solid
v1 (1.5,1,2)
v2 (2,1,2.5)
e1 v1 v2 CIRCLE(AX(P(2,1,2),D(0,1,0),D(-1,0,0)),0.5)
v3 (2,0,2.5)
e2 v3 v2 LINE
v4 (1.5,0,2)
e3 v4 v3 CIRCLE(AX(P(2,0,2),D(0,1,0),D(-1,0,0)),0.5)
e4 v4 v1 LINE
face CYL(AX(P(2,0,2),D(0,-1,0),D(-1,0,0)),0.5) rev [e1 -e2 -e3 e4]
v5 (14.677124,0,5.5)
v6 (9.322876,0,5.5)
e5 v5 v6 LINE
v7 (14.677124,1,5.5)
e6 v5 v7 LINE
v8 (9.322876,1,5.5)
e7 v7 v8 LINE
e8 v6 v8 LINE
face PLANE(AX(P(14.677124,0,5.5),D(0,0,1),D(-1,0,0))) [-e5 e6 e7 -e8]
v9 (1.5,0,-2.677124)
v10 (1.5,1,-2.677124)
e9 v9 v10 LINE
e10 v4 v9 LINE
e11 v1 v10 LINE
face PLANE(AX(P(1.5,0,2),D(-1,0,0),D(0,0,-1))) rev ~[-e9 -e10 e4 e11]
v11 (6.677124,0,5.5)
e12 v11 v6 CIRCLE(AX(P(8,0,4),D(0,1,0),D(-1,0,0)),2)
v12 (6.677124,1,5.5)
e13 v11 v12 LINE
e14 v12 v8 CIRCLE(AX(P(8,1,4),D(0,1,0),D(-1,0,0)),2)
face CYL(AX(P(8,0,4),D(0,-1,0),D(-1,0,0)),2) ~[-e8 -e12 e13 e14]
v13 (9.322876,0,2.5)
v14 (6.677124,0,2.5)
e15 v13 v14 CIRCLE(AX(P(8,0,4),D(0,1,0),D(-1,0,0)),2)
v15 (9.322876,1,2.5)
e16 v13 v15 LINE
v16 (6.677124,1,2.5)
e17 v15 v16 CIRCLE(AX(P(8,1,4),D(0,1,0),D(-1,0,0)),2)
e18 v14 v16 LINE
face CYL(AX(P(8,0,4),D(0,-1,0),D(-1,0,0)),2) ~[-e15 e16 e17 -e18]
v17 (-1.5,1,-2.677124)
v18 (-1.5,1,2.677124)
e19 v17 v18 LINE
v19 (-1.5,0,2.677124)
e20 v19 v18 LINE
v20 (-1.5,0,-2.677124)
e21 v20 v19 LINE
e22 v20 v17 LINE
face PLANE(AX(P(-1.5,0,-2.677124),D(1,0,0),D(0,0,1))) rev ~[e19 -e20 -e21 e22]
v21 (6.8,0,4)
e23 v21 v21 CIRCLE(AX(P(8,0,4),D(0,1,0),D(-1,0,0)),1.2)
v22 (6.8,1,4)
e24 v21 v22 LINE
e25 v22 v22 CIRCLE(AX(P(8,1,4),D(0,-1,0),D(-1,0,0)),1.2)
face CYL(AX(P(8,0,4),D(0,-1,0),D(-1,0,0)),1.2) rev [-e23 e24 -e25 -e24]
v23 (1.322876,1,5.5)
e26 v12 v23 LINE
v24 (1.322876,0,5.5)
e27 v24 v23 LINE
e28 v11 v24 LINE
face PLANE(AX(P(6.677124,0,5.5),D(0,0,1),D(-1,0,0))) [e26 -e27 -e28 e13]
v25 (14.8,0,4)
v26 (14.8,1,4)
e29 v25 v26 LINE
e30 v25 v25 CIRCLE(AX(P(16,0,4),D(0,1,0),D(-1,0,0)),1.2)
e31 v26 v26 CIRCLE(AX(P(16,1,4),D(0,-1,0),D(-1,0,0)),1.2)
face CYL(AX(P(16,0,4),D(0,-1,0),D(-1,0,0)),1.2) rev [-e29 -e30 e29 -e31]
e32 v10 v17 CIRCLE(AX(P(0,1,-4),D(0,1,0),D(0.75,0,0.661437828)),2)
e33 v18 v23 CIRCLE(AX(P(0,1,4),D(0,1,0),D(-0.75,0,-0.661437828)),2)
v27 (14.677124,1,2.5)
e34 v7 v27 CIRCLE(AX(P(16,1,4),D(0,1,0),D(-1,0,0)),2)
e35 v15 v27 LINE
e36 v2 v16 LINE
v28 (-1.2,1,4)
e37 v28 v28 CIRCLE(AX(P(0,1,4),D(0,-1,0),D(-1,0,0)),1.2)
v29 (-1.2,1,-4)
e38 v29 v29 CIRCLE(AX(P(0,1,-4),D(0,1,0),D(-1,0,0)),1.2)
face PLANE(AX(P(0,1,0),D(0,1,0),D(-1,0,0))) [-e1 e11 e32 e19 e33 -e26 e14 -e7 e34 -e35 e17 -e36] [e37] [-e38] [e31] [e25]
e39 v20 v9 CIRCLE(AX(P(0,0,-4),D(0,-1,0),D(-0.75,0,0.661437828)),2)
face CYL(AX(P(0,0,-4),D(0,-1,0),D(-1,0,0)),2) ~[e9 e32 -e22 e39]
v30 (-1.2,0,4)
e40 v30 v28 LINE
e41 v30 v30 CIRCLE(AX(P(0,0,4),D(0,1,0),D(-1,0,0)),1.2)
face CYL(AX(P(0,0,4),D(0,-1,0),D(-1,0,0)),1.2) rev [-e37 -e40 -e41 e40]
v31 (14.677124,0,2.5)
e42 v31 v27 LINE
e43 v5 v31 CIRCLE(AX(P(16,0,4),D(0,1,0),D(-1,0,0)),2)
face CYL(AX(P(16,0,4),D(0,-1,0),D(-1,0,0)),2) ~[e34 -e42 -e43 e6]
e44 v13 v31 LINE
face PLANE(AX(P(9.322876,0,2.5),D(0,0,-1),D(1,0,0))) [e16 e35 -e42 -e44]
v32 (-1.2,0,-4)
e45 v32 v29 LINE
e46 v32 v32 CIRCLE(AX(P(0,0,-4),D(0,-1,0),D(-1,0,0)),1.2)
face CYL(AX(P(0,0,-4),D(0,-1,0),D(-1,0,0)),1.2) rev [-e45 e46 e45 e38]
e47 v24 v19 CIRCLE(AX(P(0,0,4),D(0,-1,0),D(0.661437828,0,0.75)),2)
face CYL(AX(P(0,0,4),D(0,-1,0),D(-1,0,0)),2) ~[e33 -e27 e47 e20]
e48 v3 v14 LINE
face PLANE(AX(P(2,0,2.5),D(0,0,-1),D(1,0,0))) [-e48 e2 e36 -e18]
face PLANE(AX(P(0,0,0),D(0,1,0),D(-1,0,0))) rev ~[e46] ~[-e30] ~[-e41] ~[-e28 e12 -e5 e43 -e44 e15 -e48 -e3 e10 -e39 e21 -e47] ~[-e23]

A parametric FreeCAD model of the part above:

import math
import FreeCAD as App
import Part
import Sketcher
Q = App.Units.Quantity

doc = App.newDocument("Part")
params = doc.addObject("Spreadsheet::Sheet", "Params")
for row, (alias, value) in enumerate([
    ("sketch1_radius", "2 mm"),
    ("sketch1_diameter", "2.4 mm"),
    ("sketch1_radius2", "0.5 mm"),
    ("pad1_length", "1 mm"),
], start=1):
    params.set(f"A{row}", alias)
    params.set(f"B{row}", "=" + value)
    params.setAlias(f"B{row}", alias)

body = doc.addObject("PartDesign::Body", "Body")

# Sketch on XZ plane
sketch1 = body.newObject("Sketcher::SketchObject", "Sketch")
sketch1.AttachmentSupport = (doc.getObject("XZ_Plane"), [""])
sketch1.MapMode = "FlatFace"
sketch1.addGeometry(Part.ArcOfCircle(Part.Circle(App.Vector(0, -4, 0), App.Vector(0, 0, 1), 2), math.radians(139), math.radians(401)), False)
sketch1.addGeometry(Part.LineSegment(App.Vector(-1.5, -2.7, 0), App.Vector(-1.5, 2.7, 0)), False)
sketch1.addGeometry(Part.ArcOfCircle(Part.Circle(App.Vector(0, 4, 0), App.Vector(0, 0, 1), 2), math.radians(49), math.radians(221)), False)
sketch1.addGeometry(Part.LineSegment(App.Vector(1.3, 5.5, 0), App.Vector(6.7, 5.5, 0)), False)
sketch1.addGeometry(Part.ArcOfCircle(Part.Circle(App.Vector(8, 4, 0), App.Vector(0, 0, 1), 2), math.radians(49), math.radians(131)), False)
sketch1.addGeometry(Part.LineSegment(App.Vector(9.3, 5.5, 0), App.Vector(14.7, 5.5, 0)), False)
sketch1.addGeometry(Part.ArcOfCircle(Part.Circle(App.Vector(16, 4, 0), App.Vector(0, 0, 1), 2), math.radians(-131), math.radians(131)), False)
sketch1.addGeometry(Part.LineSegment(App.Vector(14.7, 2.5, 0), App.Vector(9.3, 2.5, 0)), False)
sketch1.addGeometry(Part.ArcOfCircle(Part.Circle(App.Vector(8, 4, 0), App.Vector(0, 0, 1), 2), math.radians(-131), math.radians(-49)), False)
sketch1.addGeometry(Part.LineSegment(App.Vector(6.7, 2.5, 0), App.Vector(2, 2.5, 0)), False)
sketch1.addGeometry(Part.ArcOfCircle(Part.Circle(App.Vector(2, 2, 0), App.Vector(0, 0, 1), 0.5), math.radians(90), math.radians(180)), False)
sketch1.addGeometry(Part.LineSegment(App.Vector(1.5, 2, 0), App.Vector(1.5, -2.7, 0)), False)
sketch1.addGeometry(Part.Circle(App.Vector(0, -4, 0), App.Vector(0, 0, 1), 1.2), False)
sketch1.addGeometry(Part.Circle(App.Vector(8, 4, 0), App.Vector(0, 0, 1), 1.2), False)
sketch1.addGeometry(Part.Circle(App.Vector(0, 4, 0), App.Vector(0, 0, 1), 1.2), False)
sketch1.addGeometry(Part.Circle(App.Vector(16, 4, 0), App.Vector(0, 0, 1), 1.2), False)
sketch1.addConstraint(Sketcher.Constraint("Coincident", 0, 1, 1, 1))
sketch1.addConstraint(Sketcher.Constraint("Coincident", 1, 2, 2, 2))
sketch1.addConstraint(Sketcher.Constraint("Coincident", 2, 1, 3, 1))
sketch1.addConstraint(Sketcher.Constraint("Coincident", 3, 2, 4, 2))
sketch1.addConstraint(Sketcher.Constraint("Coincident", 4, 1, 5, 1))
sketch1.addConstraint(Sketcher.Constraint("Coincident", 5, 2, 6, 2))
sketch1.addConstraint(Sketcher.Constraint("Coincident", 6, 1, 7, 1))
sketch1.addConstraint(Sketcher.Constraint("Coincident", 7, 2, 8, 2))
sketch1.addConstraint(Sketcher.Constraint("Coincident", 8, 1, 9, 1))
sketch1.addConstraint(Sketcher.Constraint("Tangent", 9, 2, 10, 1))
sketch1.addConstraint(Sketcher.Constraint("Tangent", 10, 2, 11, 1))
sketch1.addConstraint(Sketcher.Constraint("Coincident", 11, 2, 0, 2))
sketch1.addConstraint(Sketcher.Constraint("Vertical", 1))
sketch1.addConstraint(Sketcher.Constraint("Horizontal", 3))
sketch1.addConstraint(Sketcher.Constraint("Horizontal", 5))
sketch1.addConstraint(Sketcher.Constraint("Horizontal", 7))
sketch1.addConstraint(Sketcher.Constraint("Horizontal", 9))
sketch1.addConstraint(Sketcher.Constraint("Vertical", 11))
sketch1.addConstraint(Sketcher.Constraint("Coincident", 8, 3, 4, 3))
sketch1.addConstraint(Sketcher.Constraint("Coincident", 12, 3, 0, 3))
sketch1.addConstraint(Sketcher.Constraint("Coincident", 13, 3, 4, 3))
sketch1.addConstraint(Sketcher.Constraint("Coincident", 14, 3, 2, 3))
sketch1.addConstraint(Sketcher.Constraint("Coincident", 15, 3, 6, 3))
sketch1.addConstraint(Sketcher.Constraint("Equal", 0, 2))
sketch1.addConstraint(Sketcher.Constraint("Equal", 2, 4))
sketch1.addConstraint(Sketcher.Constraint("Equal", 4, 6))
sketch1.addConstraint(Sketcher.Constraint("Equal", 6, 8))
sketch1.addConstraint(Sketcher.Constraint("Equal", 12, 13))
sketch1.addConstraint(Sketcher.Constraint("Equal", 13, 14))
sketch1.addConstraint(Sketcher.Constraint("Equal", 14, 15))
sketch1.addConstraint(Sketcher.Constraint("Symmetric", 0, 3, 2, 3, -1, 1))
sketch1.addConstraint(Sketcher.Constraint("Symmetric", 0, 1, 11, 2, -2))
sketch1.addConstraint(Sketcher.Constraint("Horizontal", 2, 3, 4, 3))
sketch1.addConstraint(Sketcher.Constraint("Horizontal", 4, 3, 6, 3))
sketch1.addConstraint(Sketcher.Constraint("Horizontal", 3, 2, 4, 1))
sketch1.addConstraint(Sketcher.Constraint("Horizontal", 7, 2, 8, 1))
sketch1.addConstraint(Sketcher.Constraint("Vertical", 5, 2, 6, 1))
sketch1.addConstraint(Sketcher.Constraint("Equal", 3, 5))
sketch1.addConstraint(Sketcher.Constraint("Equal", 7, 1))
sketch1.addConstraint(Sketcher.Constraint("Equal", 9, 11))
sketch1.addConstraint(Sketcher.Constraint("Radius", 0, Q("2 mm")))
sketch1.addConstraint(Sketcher.Constraint("Diameter", 12, Q("2.4 mm")))
sketch1.addConstraint(Sketcher.Constraint("Radius", 10, Q("0.5 mm")))
sketch1.addConstraint(Sketcher.Constraint("DistanceY", 0, 3, -1, 1, Q("4 mm")))
sketch1.addConstraint(Sketcher.Constraint("DistanceY", 6, 1, 5, 2, Q("3 mm")))
sketch1.setExpression("Constraints[40]", "Params.sketch1_radius")
sketch1.setExpression("Constraints[41]", "Params.sketch1_diameter")
sketch1.setExpression("Constraints[42]", "Params.sketch1_radius2")
pad1 = body.newObject("PartDesign::Pad", "Pad")
pad1.Profile = sketch1
pad1.setExpression("Length", "Params.pad1_length")
pad1.Reversed = True

doc.recompute()
